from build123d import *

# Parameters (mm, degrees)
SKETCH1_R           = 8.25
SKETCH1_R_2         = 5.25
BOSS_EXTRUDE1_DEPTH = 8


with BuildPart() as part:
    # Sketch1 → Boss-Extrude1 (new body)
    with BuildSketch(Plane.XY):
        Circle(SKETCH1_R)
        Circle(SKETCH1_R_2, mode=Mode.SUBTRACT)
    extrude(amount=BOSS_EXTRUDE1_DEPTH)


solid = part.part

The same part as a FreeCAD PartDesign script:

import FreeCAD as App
import Part
import Sketcher

V = App.Vector

doc = App.newDocument("Part")
body = doc.addObject("PartDesign::Body", "Body")

sketch1 = doc.addObject("Sketcher::SketchObject", "Sketch")
body.addObject(sketch1)
sketch1.AttachmentSupport = (doc.XY_Plane, [""])
sketch1.MapMode = "FlatFace"
sketch1.addGeometry(Part.Circle(V(0, 0, 0), V(0, 0, 1), 8.25), False)
sketch1.addGeometry(Part.Circle(V(0, 0, 0), V(0, 0, 1), 5.25), False)
sketch1.addConstraint(Sketcher.Constraint("Coincident", 0, 3, -1, 1))
sketch1.addConstraint(Sketcher.Constraint("Coincident", 1, 3, -1, 1))
sketch1.addConstraint(Sketcher.Constraint("Diameter", 0, 16.5))
sketch1.addConstraint(Sketcher.Constraint("Diameter", 1, 10.5))
pad1 = doc.addObject("PartDesign::Pad", "Pad")
body.addObject(pad1)
pad1.Profile = sketch1
pad1.Length = 8

doc.recompute()
